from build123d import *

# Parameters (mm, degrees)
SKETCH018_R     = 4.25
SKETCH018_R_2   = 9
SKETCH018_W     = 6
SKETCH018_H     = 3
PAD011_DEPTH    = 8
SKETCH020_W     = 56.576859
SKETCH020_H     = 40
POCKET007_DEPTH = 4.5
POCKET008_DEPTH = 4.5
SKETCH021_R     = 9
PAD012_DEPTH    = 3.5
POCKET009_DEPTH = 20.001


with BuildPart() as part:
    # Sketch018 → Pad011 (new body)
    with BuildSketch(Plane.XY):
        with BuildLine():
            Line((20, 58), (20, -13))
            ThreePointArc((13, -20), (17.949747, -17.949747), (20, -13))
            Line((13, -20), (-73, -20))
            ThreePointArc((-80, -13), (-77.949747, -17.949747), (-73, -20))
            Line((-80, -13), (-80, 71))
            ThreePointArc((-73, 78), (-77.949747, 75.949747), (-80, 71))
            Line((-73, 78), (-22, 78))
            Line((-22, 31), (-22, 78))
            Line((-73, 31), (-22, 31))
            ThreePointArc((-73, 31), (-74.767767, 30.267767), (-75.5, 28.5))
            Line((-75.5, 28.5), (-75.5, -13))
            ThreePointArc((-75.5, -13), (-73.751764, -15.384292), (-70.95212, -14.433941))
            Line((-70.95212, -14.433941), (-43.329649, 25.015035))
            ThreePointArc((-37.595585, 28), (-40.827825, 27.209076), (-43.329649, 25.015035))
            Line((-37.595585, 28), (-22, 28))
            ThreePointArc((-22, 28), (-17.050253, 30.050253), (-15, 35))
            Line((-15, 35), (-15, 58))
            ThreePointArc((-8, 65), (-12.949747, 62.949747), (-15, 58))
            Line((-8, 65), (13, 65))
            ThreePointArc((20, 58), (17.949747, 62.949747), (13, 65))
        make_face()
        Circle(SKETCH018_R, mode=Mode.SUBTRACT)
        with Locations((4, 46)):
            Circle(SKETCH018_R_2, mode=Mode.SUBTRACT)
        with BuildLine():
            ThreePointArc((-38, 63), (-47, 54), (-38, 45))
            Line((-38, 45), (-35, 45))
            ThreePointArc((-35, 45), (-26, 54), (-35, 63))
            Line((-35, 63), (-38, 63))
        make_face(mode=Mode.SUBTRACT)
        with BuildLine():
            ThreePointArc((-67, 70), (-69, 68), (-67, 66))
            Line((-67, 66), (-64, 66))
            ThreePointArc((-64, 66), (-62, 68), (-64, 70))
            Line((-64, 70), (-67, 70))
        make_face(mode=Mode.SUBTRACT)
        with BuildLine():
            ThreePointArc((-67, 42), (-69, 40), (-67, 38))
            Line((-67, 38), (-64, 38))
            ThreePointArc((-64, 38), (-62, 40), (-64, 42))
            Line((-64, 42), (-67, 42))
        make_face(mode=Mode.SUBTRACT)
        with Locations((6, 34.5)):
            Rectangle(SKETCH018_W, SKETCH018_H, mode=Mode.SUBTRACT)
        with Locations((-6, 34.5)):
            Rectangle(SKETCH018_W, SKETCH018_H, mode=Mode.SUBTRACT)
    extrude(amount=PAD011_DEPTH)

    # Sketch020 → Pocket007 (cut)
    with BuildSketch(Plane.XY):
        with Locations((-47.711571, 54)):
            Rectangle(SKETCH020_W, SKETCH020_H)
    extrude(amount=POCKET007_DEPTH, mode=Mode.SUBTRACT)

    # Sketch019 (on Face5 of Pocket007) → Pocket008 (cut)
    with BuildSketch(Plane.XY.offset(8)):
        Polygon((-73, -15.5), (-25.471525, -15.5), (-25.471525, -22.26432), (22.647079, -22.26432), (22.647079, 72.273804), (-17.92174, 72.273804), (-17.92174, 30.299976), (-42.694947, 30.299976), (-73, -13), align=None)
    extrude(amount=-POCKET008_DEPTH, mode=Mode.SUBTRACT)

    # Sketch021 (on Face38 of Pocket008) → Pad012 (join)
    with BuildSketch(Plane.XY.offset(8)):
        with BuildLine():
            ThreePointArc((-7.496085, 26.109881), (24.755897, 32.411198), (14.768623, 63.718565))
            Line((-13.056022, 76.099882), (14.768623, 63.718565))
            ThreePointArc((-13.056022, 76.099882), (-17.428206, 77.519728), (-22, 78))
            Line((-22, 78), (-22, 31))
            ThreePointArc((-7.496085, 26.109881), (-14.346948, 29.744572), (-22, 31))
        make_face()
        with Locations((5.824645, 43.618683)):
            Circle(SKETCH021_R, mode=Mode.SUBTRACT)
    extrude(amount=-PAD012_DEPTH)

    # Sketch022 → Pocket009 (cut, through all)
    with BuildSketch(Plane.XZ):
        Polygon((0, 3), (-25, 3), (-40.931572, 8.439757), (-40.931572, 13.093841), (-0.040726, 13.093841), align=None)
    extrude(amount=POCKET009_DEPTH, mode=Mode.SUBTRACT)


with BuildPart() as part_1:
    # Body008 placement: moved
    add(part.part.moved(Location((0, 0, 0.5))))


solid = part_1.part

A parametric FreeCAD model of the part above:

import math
import FreeCAD as App
import Part
import Sketcher
Q = App.Units.Quantity


def add_polygon(sketch, points):
    """Adds a closed chain of lines whose ends are joined by coincident constraints."""
    first, n = sketch.GeometryCount, len(points)
    for a, b in zip(points, points[1:] + points[:1]):
        sketch.addGeometry(Part.LineSegment(App.Vector(*a, 0), App.Vector(*b, 0)), False)
    for i in range(n):
        sketch.addConstraint(Sketcher.Constraint("Coincident", first + i, 2, first + (i + 1) % n, 1))

doc = App.newDocument("Part")
body = doc.addObject("PartDesign::Body", "Body")

# Sketch on XY plane
sketch1 = body.newObject("Sketcher::SketchObject", "Sketch")
sketch1.AttachmentSupport = (doc.getObject("XY_Plane"), [""])
sketch1.MapMode = "FlatFace"
sketch1.addGeometry(Part.LineSegment(App.Vector(20, -13, 0), App.Vector(20, 58, 0)), False)  # 0
sketch1.addGeometry(Part.ArcOfCircle(Part.Circle(App.Vector(13, 58, 0), App.Vector(0, 0, 1), 7), math.radians(0), math.radians(90)), False)  # 1
sketch1.addGeometry(Part.LineSegment(App.Vector(13, 65, 0), App.Vector(-8, 65, 0)), False)  # 2
sketch1.addGeometry(Part.ArcOfCircle(Part.Circle(App.Vector(-8, 58, 0), App.Vector(0, 0, 1), 7), math.radians(90), math.radians(180)), False)  # 3
sketch1.addGeometry(Part.LineSegment(App.Vector(-15, 58, 0), App.Vector(-15, 35, 0)), False)  # 4
sketch1.addGeometry(Part.ArcOfCircle(Part.Circle(App.Vector(-22, 35, 0), App.Vector(0, 0, 1), 7), math.radians(-90), math.radians(0)), False)  # 5
sketch1.addGeometry(Part.LineSegment(App.Vector(-22, 28, 0), App.Vector(-37.6, 28, 0)), False)  # 6
sketch1.addGeometry(Part.ArcOfCircle(Part.Circle(App.Vector(-37.6, 21, 0), App.Vector(0, 0, 1), 7), math.radians(90), math.radians(145)), False)  # 7
sketch1.addGeometry(Part.LineSegment(App.Vector(-43.3, 25, 0), App.Vector(-71, -14.4, 0)), False)  # 8
sketch1.addGeometry(Part.ArcOfCircle(Part.Circle(App.Vector(-73, -13, 0), App.Vector(0, 0, 1), 2.5), math.radians(-180), math.radians(-35)), False)  # 9
sketch1.addGeometry(Part.LineSegment(App.Vector(-75.5, -13, 0), App.Vector(-75.5, 28.5, 0)), False)  # 10
sketch1.addGeometry(Part.ArcOfCircle(Part.Circle(App.Vector(-73, 28.5, 0), App.Vector(0, 0, 1), 2.5), math.radians(90), math.radians(180)), False)  # 11
sketch1.addGeometry(Part.LineSegment(App.Vector(-73, 31, 0), App.Vector(-22, 31, 0)), False)  # 12
sketch1.addGeometry(Part.LineSegment(App.Vector(-22, 31, 0), App.Vector(-22, 78, 0)), False)  # 13
sketch1.addGeometry(Part.LineSegment(App.Vector(-22, 78, 0), App.Vector(-73, 78, 0)), False)  # 14
sketch1.addGeometry(Part.ArcOfCircle(Part.Circle(App.Vector(-73, 71, 0), App.Vector(0, 0, 1), 7), math.radians(90), math.radians(180)), False)  # 15
sketch1.addGeometry(Part.LineSegment(App.Vector(-80, 71, 0), App.Vector(-80, -13, 0)), False)  # 16
sketch1.addGeometry(Part.ArcOfCircle(Part.Circle(App.Vector(-73, -13, 0), App.Vector(0, 0, 1), 7), math.radians(-180), math.radians(-90)), False)  # 17
sketch1.addGeometry(Part.LineSegment(App.Vector(-73, -20, 0), App.Vector(13, -20, 0)), False)  # 18
sketch1.addGeometry(Part.ArcOfCircle(Part.Circle(App.Vector(13, -13, 0), App.Vector(0, 0, 1), 7), math.radians(-90), math.radians(0)), False)  # 19
sketch1.addGeometry(Part.Circle(App.Vector(0, 0, 0), App.Vector(0, 0, 1), 4.2), False)  # 20
add_polygon(sketch1, [(3, 33), (3, 36), (9, 36), (9, 33)])  # lines 21-24
add_polygon(sketch1, [(-9, 33), (-9, 36), (-3, 36), (-3, 33)])  # lines 25-28
sketch1.addGeometry(Part.Circle(App.Vector(4, 46, 0), App.Vector(0, 0, 1), 9), False)  # 29
sketch1.addGeometry(Part.LineSegment(App.Vector(-67, 42, 0), App.Vector(-64, 42, 0)), False)  # 30
sketch1.addGeometry(Part.ArcOfCircle(Part.Circle(App.Vector(-64, 40, 0), App.Vector(0, 0, 1), 2), math.radians(-90), math.radians(90)), False)  # 31
sketch1.addGeometry(Part.LineSegment(App.Vector(-64, 38, 0), App.Vector(-67, 38, 0)), False)  # 32
sketch1.addGeometry(Part.ArcOfCircle(Part.Circle(App.Vector(-67, 40, 0), App.Vector(0, 0, 1), 2), math.radians(90), math.radians(270)), False)  # 33
sketch1.addGeometry(Part.LineSegment(App.Vector(-38, 63, 0), App.Vector(-35, 63, 0)), False)  # 34
sketch1.addGeometry(Part.ArcOfCircle(Part.Circle(App.Vector(-35, 54, 0), App.Vector(0, 0, 1), 9), math.radians(-90), math.radians(90)), False)  # 35
sketch1.addGeometry(Part.LineSegment(App.Vector(-35, 45, 0), App.Vector(-38, 45, 0)), False)  # 36
sketch1.addGeometry(Part.ArcOfCircle(Part.Circle(App.Vector(-38, 54, 0), App.Vector(0, 0, 1), 9), math.radians(90), math.radians(270)), False)  # 37
sketch1.addGeometry(Part.LineSegment(App.Vector(-67, 70, 0), App.Vector(-64, 70, 0)), False)  # 38
sketch1.addGeometry(Part.ArcOfCircle(Part.Circle(App.Vector(-64, 68, 0), App.Vector(0, 0, 1), 2), math.radians(-90), math.radians(90)), False)  # 39
sketch1.addGeometry(Part.LineSegment(App.Vector(-64, 66, 0), App.Vector(-67, 66, 0)), False)  # 40
sketch1.addGeometry(Part.ArcOfCircle(Part.Circle(App.Vector(-67, 68, 0), App.Vector(0, 0, 1), 2), math.radians(90), math.radians(270)), False)  # 41
sketch1.addConstraint([
    Sketcher.Constraint("Tangent", 0, 2, 1, 1),
    Sketcher.Constraint("Tangent", 1, 2, 2, 1),
    Sketcher.Constraint("Tangent", 2, 2, 3, 1),
    Sketcher.Constraint("Tangent", 3, 2, 4, 1),
    Sketcher.Constraint("Tangent", 4, 2, 5, 2),
    Sketcher.Constraint("Tangent", 5, 1, 6, 1),
    Sketcher.Constraint("Tangent", 6, 2, 7, 1),
    Sketcher.Constraint("Tangent", 7, 2, 8, 1),
    Sketcher.Constraint("Tangent", 8, 2, 9, 2),
    Sketcher.Constraint("Tangent", 9, 1, 10, 1),
    Sketcher.Constraint("Tangent", 10, 2, 11, 2),
    Sketcher.Constraint("Tangent", 11, 1, 12, 1),
    Sketcher.Constraint("Coincident", 12, 2, 13, 1),
    Sketcher.Constraint("Coincident", 13, 2, 14, 1),
    Sketcher.Constraint("Tangent", 14, 2, 15, 1),
    Sketcher.Constraint("Tangent", 15, 2, 16, 1),
    Sketcher.Constraint("Tangent", 16, 2, 17, 1),
    Sketcher.Constraint("Tangent", 17, 2, 18, 1),
    Sketcher.Constraint("Tangent", 18, 2, 19, 1),
    Sketcher.Constraint("Tangent", 19, 2, 0, 1),
    Sketcher.Constraint("Tangent", 30, 2, 31, 2),
    Sketcher.Constraint("Tangent", 31, 1, 32, 1),
    Sketcher.Constraint("Tangent", 32, 2, 33, 2),
    Sketcher.Constraint("Tangent", 33, 1, 30, 1),
    Sketcher.Constraint("Tangent", 34, 2, 35, 2),
    Sketcher.Constraint("Tangent", 35, 1, 36, 1),
    Sketcher.Constraint("Tangent", 36, 2, 37, 2),
    Sketcher.Constraint("Tangent", 37, 1, 34, 1),
    Sketcher.Constraint("Tangent", 38, 2, 39, 2),
    Sketcher.Constraint("Tangent", 39, 1, 40, 1),
    Sketcher.Constraint("Tangent", 40, 2, 41, 2),
    Sketcher.Constraint("Tangent", 41, 1, 38, 1),
    Sketcher.Constraint("Vertical", 0),
    Sketcher.Constraint("Horizontal", 2),
    Sketcher.Constraint("Vertical", 4),
    Sketcher.Constraint("Horizontal", 6),
    Sketcher.Constraint("Vertical", 10),
    Sketcher.Constraint("Horizontal", 12),
    Sketcher.Constraint("Vertical", 13),
    Sketcher.Constraint("Horizontal", 14),
    Sketcher.Constraint("Vertical", 16),
    Sketcher.Constraint("Horizontal", 18),
    Sketcher.Constraint("Vertical", 21),
    Sketcher.Constraint("Horizontal", 22),
    Sketcher.Constraint("Vertical", 23),
    Sketcher.Constraint("Horizontal", 24),
    Sketcher.Constraint("Vertical", 25),
    Sketcher.Constraint("Horizontal", 26),
    Sketcher.Constraint("Vertical", 27),
    Sketcher.Constraint("Horizontal", 28),
    Sketcher.Constraint("Horizontal", 30),
    Sketcher.Constraint("Horizontal", 32),
    Sketcher.Constraint("Horizontal", 34),
    Sketcher.Constraint("Horizontal", 36),
    Sketcher.Constraint("Horizontal", 38),
    Sketcher.Constraint("Horizontal", 40),
    Sketcher.Constraint("Coincident", 20, 3, -1, 1),
    Sketcher.Constraint("Coincident", 17, 3, 9, 3),
    Sketcher.Constraint("Equal", 1, 3),
    Sketcher.Constraint("Equal", 3, 5),
    Sketcher.Constraint("Equal", 9, 11),
    Sketcher.Constraint("Equal", 5, 15),
    Sketcher.Constraint("Equal", 15, 17),
    Sketcher.Constraint("Equal", 17, 19),
    Sketcher.Constraint("Equal", 29, 35),
    Sketcher.Constraint("Equal", 33, 39),
    Sketcher.Constraint("Symmetric", 22, 2, 25, 2, -2),
    Sketcher.Constraint("Symmetric", 24, 2, 27, 2, -2),
    Sketcher.Constraint("Vertical", 31, 3, 39, 3),
    Sketcher.Constraint("Vertical", 33, 3, 41, 3),
    Sketcher.Constraint("Vertical", 5, 1, 12, 2),
    Sketcher.Constraint("Equal", 32, 34),
    Sketcher.Constraint("Equal", 40, 21),
    Sketcher.Constraint("Diameter", 29, 18.0),
    Sketcher.Constraint("Radius", 1, 7.000002),
    Sketcher.Constraint("Radius", 7, 6.999999),
    Sketcher.Constraint("Radius", 31, 2.0),
    Sketcher.Constraint("Diameter", 20, 8.5),
    Sketcher.Constraint("Radius", 9, 2.5),
    Sketcher.Constraint("DistanceX", 2, 2, 2, 1, 21.0),
    Sketcher.Constraint("DistanceX", 12, 1, 12, 2, 51.0),
    Sketcher.Constraint("DistanceX", 22, 1, 22, 2, 6.0),
    Sketcher.Constraint("DistanceX", 30, 1, 30, 2, 3.0),
    Sketcher.Constraint("DistanceY", 0, 1, 0, 2, 71.0),
    Sketcher.Constraint("DistanceY", 4, 2, 4, 1, 23.0),
    Sketcher.Constraint("DistanceY", 13, 1, 13, 2, 47.0),
    Sketcher.Constraint("DistanceY", 16, 2, 16, 1, 84.0),
    Sketcher.Constraint("Angle", 8, Q("-125.000001 deg")),
    Sketcher.Constraint("DistanceX", -1, 1, 1, 3, 12.999998),
    Sketcher.Constraint("DistanceY", -1, 1, 1, 3, 57.999998),
    Sketcher.Constraint("DistanceX", -1, 1, 29, 3, 4.0),
    Sketcher.Constraint("DistanceY", -1, 1, 29, 3, 46.0),
    Sketcher.Constraint("DistanceX", 31, 3, -1, 1, 64.0),
    Sketcher.Constraint("DistanceY", -1, 1, 31, 3, 40.0),
    Sketcher.Constraint("DistanceX", 35, 3, -1, 1, 35.0),
    Sketcher.Constraint("DistanceY", -1, 1, 35, 3, 54.0),
    Sketcher.Constraint("DistanceY", -1, 1, 39, 3, 68.0),
    Sketcher.Constraint("DistanceX", -1, 1, 21, 2, 3.0),
    Sketcher.Constraint("DistanceY", -1, 1, 21, 2, 36.0),
])
pad1 = body.newObject("PartDesign::Pad", "Pad")
pad1.Profile = sketch1
pad1.Length = 8

# Sketch on XY plane
sketch2 = body.newObject("Sketcher::SketchObject", "Sketch001")
sketch2.AttachmentSupport = (doc.getObject("XY_Plane"), [""])
sketch2.MapMode = "FlatFace"
add_polygon(sketch2, [(-76, 74), (-76, 34), (-19, 34), (-19, 74)])  # lines 0-3
sketch2.addConstraint([
    Sketcher.Constraint("Vertical", 0),
    Sketcher.Constraint("Horizontal", 1),
    Sketcher.Constraint("Vertical", 2),
    Sketcher.Constraint("Horizontal", 3),
    Sketcher.Constraint("DistanceY", 0, 2, 0, 1, 40.0),
    Sketcher.Constraint("DistanceX", 0, 2, -1, 1, 76.0),
    Sketcher.Constraint("DistanceY", -1, 1, 0, 2, 34.0),
    Sketcher.Constraint("DistanceX", 1, 1, 1, 2, 56.576859),
])
pocket1 = body.newObject("PartDesign::Pocket", "Pocket")
pocket1.Profile = sketch2
pocket1.Length = 4.5
pocket1.Reversed = True

# Sketch on XY plane
sketch3 = body.newObject("Sketcher::SketchObject", "Sketch002")
sketch3.AttachmentSupport = (doc.getObject("XY_Plane"), [""])
sketch3.MapMode = "FlatFace"
sketch3.AttachmentOffset = App.Placement(App.Vector(0, 0, 8), App.Rotation())
add_polygon(sketch3, [(-73, -15.5), (-25.5, -15.5), (-25.5, -22.3), (22.6, -22.3), (22.6, 72.3), (-17.9, 72.3), (-17.9, 30.3), (-42.7, 30.3), (-73, -13)])  # lines 0-8
sketch3.addConstraint([
    Sketcher.Constraint("Horizontal", 0),
    Sketcher.Constraint("Vertical", 1),
    Sketcher.Constraint("Horizontal", 2),
    Sketcher.Constraint("Vertical", 3),
    Sketcher.Constraint("Horizontal", 4),
    Sketcher.Constraint("Vertical", 5),
    Sketcher.Constraint("Horizontal", 6),
    Sketcher.Constraint("Vertical", 8),
    Sketcher.Constraint("DistanceY", 8, 2, 8, 1, 2.5),
    Sketcher.Constraint("DistanceX", 7, 2, -1, 1, 73.0),
    Sketcher.Constraint("DistanceY", 7, 2, -1, 1, 13.0),
    Sketcher.Constraint("DistanceX", 4, 2, 4, 1, 40.568819),
    Sketcher.Constraint("DistanceY", 1, 2, 1, 1, 6.76432),
    Sketcher.Constraint("Distance", 7, 52.851529),
    Sketcher.Constraint("DistanceX", 0, 1, 0, 2, 47.528475),
    Sketcher.Constraint("DistanceX", 2, 1, 2, 2, 48.118604),
    Sketcher.Constraint("DistanceX", 6, 2, 6, 1, 24.773207),
    Sketcher.Constraint("DistanceY", 3, 1, 3, 2, 94.538124),
])
pocket2 = body.newObject("PartDesign::Pocket", "Pocket001")
pocket2.Profile = sketch3
pocket2.Length = 4.5

# Sketch on XY plane
sketch4 = body.newObject("Sketcher::SketchObject", "Sketch003")
sketch4.AttachmentSupport = (doc.getObject("XY_Plane"), [""])
sketch4.MapMode = "FlatFace"
sketch4.AttachmentOffset = App.Placement(App.Vector(0, 0, 8), App.Rotation())
sketch4.addGeometry([
    Part.ArcOfCircle(Part.Circle(App.Vector(6, 44, 0), App.Vector(0, 0, 1), 22), math.radians(-127), math.radians(66)),  # 0
    Part.LineSegment(App.Vector(15, 64, 0), App.Vector(-13, 76, 0)),  # 1
    Part.ArcOfCircle(Part.Circle(App.Vector(-22, 56, 0), App.Vector(0, 0, 1), 22), math.radians(66), math.radians(90)),  # 2
    Part.LineSegment(App.Vector(-22, 78, 0), App.Vector(-22, 31, 0)),  # 3
    Part.ArcOfCircle(Part.Circle(App.Vector(-22, 7, 0), App.Vector(0, 0, 1), 24), math.radians(53), math.radians(90)),  # 4
    Part.Circle(App.Vector(6, 44, 0), App.Vector(0, 0, 1), 9),  # 5
], False)
sketch4.addConstraint([
    Sketcher.Constraint("Tangent", 0, 2, 1, 1),
    Sketcher.Constraint("Tangent", 1, 2, 2, 1),
    Sketcher.Constraint("Coincident", 2, 2, 3, 1),
    Sketcher.Constraint("Coincident", 3, 2, 4, 2),
    Sketcher.Constraint("Tangent", 4, 1, 0, 1),
    Sketcher.Constraint("Vertical", 3),
    Sketcher.Constraint("Coincident", 5, 3, 0, 3),
    Sketcher.Constraint("Vertical", 2, 3, 4, 3),
    Sketcher.Constraint("Vertical", 4, 3, 2, 2),
    Sketcher.Constraint("Diameter", 5, 18.0),
    Sketcher.Constraint("Radius", 0, 22.0),
    Sketcher.Constraint("DistanceY", 3, 2, 3, 1, 47.0),
    Sketcher.Constraint("DistanceX", 2, 3, -1, 1, 22.000001),
    Sketcher.Constraint("DistanceY", -1, 1, 2, 2, 78.0),
    Sketcher.Constraint("Radius", 4, 23.9541),
    Sketcher.Constraint("Radius", 2, 22.000006),
    Sketcher.Constraint("DistanceY", 5, 3, 1, 2, 32.481199),
])
pad2 = body.newObject("PartDesign::Pad", "Pad001")
pad2.Profile = sketch4
pad2.Length = 3.5
pad2.Reversed = True

# Sketch on XZ plane
sketch5 = body.newObject("Sketcher::SketchObject", "Sketch004")
sketch5.AttachmentSupport = (doc.getObject("XZ_Plane"), [""])
sketch5.MapMode = "FlatFace"
add_polygon(sketch5, [(-25, 3), (0, 3), (0, 13.1), (-40.9, 13.1), (-40.9, 8.4)])  # lines 0-4
sketch5.addConstraint([
    Sketcher.Constraint("Horizontal", 0),
    Sketcher.Constraint("Horizontal", 2),
    Sketcher.Constraint("Vertical", 3),
    Sketcher.Constraint("PointOnObject", 0, 2, -2),
    Sketcher.Constraint("DistanceX", 0, 1, 0, 2, 25.0),
    Sketcher.Constraint("DistanceY", -1, 1, 0, 2, 3.0),
    Sketcher.Constraint("DistanceX", 2, 2, 2, 1, 40.890846),
    Sketcher.Constraint("DistanceY", 3, 2, 3, 1, 4.654084),
    Sketcher.Constraint("DistanceY", -1, 1, 1, 2, 13.093841),
    Sketcher.Constraint("Distance", 4, 16.834665),
])
pocket3 = body.newObject("PartDesign::Pocket", "Pocket002")
pocket3.Profile = sketch5
pocket3.Type = "ThroughAll"
pocket3.Reversed = True
body2 = doc.addObject("PartDesign::Body", "Body001")
doc.recompute()

body.Placement = App.Placement(App.Vector(0, 0, 0.5), App.Rotation(App.Vector(0, 0, 1), 0))
boolean = body2.newObject("PartDesign::Boolean", "Boolean")
boolean.Type = "Fuse"
boolean.addObjects([body])

doc.recompute()
